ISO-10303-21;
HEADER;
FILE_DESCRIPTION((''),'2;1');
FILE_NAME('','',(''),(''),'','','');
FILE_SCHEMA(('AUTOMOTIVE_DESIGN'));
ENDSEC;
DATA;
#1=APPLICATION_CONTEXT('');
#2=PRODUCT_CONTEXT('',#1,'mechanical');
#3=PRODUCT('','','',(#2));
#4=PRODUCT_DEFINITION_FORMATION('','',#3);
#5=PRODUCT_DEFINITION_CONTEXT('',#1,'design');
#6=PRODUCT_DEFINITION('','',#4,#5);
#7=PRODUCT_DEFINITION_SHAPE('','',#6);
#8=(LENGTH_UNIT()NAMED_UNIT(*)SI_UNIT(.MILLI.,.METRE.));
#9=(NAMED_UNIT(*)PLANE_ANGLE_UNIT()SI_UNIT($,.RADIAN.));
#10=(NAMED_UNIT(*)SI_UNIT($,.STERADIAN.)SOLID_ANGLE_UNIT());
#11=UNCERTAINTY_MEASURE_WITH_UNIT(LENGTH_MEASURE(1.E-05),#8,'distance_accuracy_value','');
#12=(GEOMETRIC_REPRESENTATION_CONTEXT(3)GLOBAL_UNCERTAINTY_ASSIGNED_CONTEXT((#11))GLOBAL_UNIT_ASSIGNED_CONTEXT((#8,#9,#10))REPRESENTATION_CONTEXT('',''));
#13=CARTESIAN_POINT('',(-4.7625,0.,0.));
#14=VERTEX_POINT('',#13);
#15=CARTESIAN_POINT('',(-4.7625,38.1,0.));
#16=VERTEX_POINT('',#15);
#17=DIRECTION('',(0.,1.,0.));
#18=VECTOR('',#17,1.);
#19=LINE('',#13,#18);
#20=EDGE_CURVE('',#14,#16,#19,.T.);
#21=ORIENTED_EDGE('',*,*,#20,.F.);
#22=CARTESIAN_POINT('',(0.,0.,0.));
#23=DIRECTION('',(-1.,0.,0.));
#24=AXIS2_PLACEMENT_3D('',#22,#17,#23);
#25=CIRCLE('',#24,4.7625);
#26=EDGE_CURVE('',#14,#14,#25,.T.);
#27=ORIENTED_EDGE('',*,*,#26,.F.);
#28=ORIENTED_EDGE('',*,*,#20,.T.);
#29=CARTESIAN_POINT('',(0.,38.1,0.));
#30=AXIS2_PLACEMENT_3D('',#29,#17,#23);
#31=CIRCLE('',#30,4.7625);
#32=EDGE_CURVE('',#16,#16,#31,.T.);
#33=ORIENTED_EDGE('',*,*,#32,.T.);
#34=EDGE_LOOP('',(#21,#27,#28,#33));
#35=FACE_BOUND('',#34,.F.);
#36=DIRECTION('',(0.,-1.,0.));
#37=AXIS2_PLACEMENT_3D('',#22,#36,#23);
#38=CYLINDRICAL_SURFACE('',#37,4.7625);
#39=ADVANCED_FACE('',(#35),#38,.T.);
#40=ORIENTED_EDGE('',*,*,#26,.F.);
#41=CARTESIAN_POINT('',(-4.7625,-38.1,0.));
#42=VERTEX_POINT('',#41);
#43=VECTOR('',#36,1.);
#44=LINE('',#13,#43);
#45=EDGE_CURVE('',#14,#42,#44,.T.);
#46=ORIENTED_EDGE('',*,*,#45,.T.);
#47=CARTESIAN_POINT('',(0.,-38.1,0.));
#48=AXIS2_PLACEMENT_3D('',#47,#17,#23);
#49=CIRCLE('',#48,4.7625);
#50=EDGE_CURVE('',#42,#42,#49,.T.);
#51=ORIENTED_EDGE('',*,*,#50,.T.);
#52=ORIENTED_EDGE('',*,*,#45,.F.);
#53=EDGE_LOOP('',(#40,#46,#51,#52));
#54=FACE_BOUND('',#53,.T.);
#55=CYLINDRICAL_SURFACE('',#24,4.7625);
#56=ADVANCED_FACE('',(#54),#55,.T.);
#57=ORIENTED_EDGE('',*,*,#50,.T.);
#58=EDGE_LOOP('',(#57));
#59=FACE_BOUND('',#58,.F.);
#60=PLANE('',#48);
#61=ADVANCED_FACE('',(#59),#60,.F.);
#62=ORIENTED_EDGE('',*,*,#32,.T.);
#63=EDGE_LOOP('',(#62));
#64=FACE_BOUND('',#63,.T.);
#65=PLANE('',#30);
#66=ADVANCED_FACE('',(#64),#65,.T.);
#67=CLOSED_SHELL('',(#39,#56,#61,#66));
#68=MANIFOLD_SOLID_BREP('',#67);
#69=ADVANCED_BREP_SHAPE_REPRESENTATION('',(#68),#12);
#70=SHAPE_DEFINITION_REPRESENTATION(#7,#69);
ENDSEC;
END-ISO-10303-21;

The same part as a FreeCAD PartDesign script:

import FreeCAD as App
import Part
import Sketcher

V = App.Vector
Q = App.Units.Quantity

doc = App.newDocument("Part")
body = doc.addObject("PartDesign::Body", "Body")

sketch1 = doc.addObject("Sketcher::SketchObject", "Sketch")
body.addObject(sketch1)
sketch1.AttachmentSupport = (doc.XZ_Plane, [""])
sketch1.MapMode = "FlatFace"
sketch1.addGeometry(Part.Circle(V(0, 0, 0), V(0, 0, 1), 4.7625), False)
sketch1.addConstraint([
    Sketcher.Constraint("Coincident", 0, 3, -1, 1),
    Sketcher.Constraint("Diameter", 0, Q("0.375 in")),
])
pad1 = doc.addObject("PartDesign::Pad", "Pad")
body.addObject(pad1)
pad1.Profile = sketch1
pad1.Length = Q("3 in")
pad1.Midplane = True

doc.recompute()
